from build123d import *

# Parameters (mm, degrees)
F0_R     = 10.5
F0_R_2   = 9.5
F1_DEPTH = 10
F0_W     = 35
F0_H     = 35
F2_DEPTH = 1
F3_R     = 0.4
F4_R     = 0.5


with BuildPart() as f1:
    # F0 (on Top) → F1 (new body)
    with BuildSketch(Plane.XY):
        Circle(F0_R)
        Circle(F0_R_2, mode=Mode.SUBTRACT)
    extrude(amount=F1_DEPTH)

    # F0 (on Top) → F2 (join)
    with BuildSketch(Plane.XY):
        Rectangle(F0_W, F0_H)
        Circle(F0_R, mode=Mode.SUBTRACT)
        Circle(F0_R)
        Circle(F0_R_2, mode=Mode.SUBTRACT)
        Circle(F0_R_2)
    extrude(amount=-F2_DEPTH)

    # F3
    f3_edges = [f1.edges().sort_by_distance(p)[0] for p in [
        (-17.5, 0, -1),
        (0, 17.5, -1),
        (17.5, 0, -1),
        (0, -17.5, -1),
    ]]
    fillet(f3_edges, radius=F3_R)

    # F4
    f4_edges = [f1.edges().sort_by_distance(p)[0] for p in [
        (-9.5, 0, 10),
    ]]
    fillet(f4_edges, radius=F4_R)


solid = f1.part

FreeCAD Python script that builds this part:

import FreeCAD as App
import Part
import Sketcher

V = App.Vector


def edges_at(feature, points):
    """Names of the edges that pass closest to the given points."""
    edges = feature.Shape.Edges
    near = lambda p: min(range(len(edges)), key=lambda i: edges[i].distToShape(Part.Vertex(*p))[0])
    return sorted({f"Edge{near(p) + 1}" for p in points})

doc = App.newDocument("Part")
body = doc.addObject("PartDesign::Body", "Body")

# Sketch on XY plane
sketch1 = body.newObject("Sketcher::SketchObject", "Sketch")
sketch1.AttachmentSupport = (doc.getObject("XY_Plane"), [""])
sketch1.MapMode = "FlatFace"
sketch1.addGeometry([
    Part.Circle(V(0, 0, 0), V(0, 0, 1), 10.5),
    Part.Circle(V(0, 0, 0), V(0, 0, 1), 9.5),
], False)
sketch1.addConstraint([
    Sketcher.Constraint("Coincident", 0, 3, -1, 1),
    Sketcher.Constraint("Coincident", 1, 3, -1, 1),
    Sketcher.Constraint("Diameter", 0, 21.0),
    Sketcher.Constraint("Diameter", 1, 19.0),
])
pad1 = body.newObject("PartDesign::Pad", "Pad")
pad1.Profile = sketch1
pad1.Length = 10

# Sketch on XY plane
sketch2 = body.newObject("Sketcher::SketchObject", "Sketch001")
sketch2.AttachmentSupport = (doc.getObject("XY_Plane"), [""])
sketch2.MapMode = "FlatFace"
sketch2.addGeometry([
    Part.LineSegment(V(-17.5, 17.5, 0), V(-17.5, -17.5, 0)),
    Part.LineSegment(V(-17.5, -17.5, 0), V(17.5, -17.5, 0)),
    Part.LineSegment(V(17.5, -17.5, 0), V(17.5, 17.5, 0)),
    Part.LineSegment(V(17.5, 17.5, 0), V(-17.5, 17.5, 0)),
], False)
sketch2.addConstraint([
    Sketcher.Constraint("Coincident", 0, 2, 1, 1),
    Sketcher.Constraint("Coincident", 1, 2, 2, 1),
    Sketcher.Constraint("Coincident", 2, 2, 3, 1),
    Sketcher.Constraint("Coincident", 3, 2, 0, 1),
    Sketcher.Constraint("Vertical", 0),
    Sketcher.Constraint("Horizontal", 1),
    Sketcher.Constraint("Vertical", 2),
    Sketcher.Constraint("Horizontal", 3),
    Sketcher.Constraint("Symmetric", 0, 2, 2, 2, -1, 1),
    Sketcher.Constraint("Equal", 3, 0),
    Sketcher.Constraint("DistanceX", 1, 1, 1, 2, 35.0),
])
pad2 = body.newObject("PartDesign::Pad", "Pad001")
pad2.Profile = sketch2
pad2.Length = 1
pad2.Reversed = True
doc.recompute()

fillet = body.newObject("PartDesign::Fillet", "Fillet")
fillet.Base = (pad2, edges_at(pad2, [
    (-17.5, 0, -1),
    (0, 17.5, -1),
    (17.5, 0, -1),
    (0, -17.5, -1),
]))
fillet.Radius = 0.4
doc.recompute()

fillet2 = body.newObject("PartDesign::Fillet", "Fillet001")
fillet2.Base = (fillet, edges_at(fillet, [(-9.5, 0, 10)]))
fillet2.Radius = 0.5

doc.recompute()
